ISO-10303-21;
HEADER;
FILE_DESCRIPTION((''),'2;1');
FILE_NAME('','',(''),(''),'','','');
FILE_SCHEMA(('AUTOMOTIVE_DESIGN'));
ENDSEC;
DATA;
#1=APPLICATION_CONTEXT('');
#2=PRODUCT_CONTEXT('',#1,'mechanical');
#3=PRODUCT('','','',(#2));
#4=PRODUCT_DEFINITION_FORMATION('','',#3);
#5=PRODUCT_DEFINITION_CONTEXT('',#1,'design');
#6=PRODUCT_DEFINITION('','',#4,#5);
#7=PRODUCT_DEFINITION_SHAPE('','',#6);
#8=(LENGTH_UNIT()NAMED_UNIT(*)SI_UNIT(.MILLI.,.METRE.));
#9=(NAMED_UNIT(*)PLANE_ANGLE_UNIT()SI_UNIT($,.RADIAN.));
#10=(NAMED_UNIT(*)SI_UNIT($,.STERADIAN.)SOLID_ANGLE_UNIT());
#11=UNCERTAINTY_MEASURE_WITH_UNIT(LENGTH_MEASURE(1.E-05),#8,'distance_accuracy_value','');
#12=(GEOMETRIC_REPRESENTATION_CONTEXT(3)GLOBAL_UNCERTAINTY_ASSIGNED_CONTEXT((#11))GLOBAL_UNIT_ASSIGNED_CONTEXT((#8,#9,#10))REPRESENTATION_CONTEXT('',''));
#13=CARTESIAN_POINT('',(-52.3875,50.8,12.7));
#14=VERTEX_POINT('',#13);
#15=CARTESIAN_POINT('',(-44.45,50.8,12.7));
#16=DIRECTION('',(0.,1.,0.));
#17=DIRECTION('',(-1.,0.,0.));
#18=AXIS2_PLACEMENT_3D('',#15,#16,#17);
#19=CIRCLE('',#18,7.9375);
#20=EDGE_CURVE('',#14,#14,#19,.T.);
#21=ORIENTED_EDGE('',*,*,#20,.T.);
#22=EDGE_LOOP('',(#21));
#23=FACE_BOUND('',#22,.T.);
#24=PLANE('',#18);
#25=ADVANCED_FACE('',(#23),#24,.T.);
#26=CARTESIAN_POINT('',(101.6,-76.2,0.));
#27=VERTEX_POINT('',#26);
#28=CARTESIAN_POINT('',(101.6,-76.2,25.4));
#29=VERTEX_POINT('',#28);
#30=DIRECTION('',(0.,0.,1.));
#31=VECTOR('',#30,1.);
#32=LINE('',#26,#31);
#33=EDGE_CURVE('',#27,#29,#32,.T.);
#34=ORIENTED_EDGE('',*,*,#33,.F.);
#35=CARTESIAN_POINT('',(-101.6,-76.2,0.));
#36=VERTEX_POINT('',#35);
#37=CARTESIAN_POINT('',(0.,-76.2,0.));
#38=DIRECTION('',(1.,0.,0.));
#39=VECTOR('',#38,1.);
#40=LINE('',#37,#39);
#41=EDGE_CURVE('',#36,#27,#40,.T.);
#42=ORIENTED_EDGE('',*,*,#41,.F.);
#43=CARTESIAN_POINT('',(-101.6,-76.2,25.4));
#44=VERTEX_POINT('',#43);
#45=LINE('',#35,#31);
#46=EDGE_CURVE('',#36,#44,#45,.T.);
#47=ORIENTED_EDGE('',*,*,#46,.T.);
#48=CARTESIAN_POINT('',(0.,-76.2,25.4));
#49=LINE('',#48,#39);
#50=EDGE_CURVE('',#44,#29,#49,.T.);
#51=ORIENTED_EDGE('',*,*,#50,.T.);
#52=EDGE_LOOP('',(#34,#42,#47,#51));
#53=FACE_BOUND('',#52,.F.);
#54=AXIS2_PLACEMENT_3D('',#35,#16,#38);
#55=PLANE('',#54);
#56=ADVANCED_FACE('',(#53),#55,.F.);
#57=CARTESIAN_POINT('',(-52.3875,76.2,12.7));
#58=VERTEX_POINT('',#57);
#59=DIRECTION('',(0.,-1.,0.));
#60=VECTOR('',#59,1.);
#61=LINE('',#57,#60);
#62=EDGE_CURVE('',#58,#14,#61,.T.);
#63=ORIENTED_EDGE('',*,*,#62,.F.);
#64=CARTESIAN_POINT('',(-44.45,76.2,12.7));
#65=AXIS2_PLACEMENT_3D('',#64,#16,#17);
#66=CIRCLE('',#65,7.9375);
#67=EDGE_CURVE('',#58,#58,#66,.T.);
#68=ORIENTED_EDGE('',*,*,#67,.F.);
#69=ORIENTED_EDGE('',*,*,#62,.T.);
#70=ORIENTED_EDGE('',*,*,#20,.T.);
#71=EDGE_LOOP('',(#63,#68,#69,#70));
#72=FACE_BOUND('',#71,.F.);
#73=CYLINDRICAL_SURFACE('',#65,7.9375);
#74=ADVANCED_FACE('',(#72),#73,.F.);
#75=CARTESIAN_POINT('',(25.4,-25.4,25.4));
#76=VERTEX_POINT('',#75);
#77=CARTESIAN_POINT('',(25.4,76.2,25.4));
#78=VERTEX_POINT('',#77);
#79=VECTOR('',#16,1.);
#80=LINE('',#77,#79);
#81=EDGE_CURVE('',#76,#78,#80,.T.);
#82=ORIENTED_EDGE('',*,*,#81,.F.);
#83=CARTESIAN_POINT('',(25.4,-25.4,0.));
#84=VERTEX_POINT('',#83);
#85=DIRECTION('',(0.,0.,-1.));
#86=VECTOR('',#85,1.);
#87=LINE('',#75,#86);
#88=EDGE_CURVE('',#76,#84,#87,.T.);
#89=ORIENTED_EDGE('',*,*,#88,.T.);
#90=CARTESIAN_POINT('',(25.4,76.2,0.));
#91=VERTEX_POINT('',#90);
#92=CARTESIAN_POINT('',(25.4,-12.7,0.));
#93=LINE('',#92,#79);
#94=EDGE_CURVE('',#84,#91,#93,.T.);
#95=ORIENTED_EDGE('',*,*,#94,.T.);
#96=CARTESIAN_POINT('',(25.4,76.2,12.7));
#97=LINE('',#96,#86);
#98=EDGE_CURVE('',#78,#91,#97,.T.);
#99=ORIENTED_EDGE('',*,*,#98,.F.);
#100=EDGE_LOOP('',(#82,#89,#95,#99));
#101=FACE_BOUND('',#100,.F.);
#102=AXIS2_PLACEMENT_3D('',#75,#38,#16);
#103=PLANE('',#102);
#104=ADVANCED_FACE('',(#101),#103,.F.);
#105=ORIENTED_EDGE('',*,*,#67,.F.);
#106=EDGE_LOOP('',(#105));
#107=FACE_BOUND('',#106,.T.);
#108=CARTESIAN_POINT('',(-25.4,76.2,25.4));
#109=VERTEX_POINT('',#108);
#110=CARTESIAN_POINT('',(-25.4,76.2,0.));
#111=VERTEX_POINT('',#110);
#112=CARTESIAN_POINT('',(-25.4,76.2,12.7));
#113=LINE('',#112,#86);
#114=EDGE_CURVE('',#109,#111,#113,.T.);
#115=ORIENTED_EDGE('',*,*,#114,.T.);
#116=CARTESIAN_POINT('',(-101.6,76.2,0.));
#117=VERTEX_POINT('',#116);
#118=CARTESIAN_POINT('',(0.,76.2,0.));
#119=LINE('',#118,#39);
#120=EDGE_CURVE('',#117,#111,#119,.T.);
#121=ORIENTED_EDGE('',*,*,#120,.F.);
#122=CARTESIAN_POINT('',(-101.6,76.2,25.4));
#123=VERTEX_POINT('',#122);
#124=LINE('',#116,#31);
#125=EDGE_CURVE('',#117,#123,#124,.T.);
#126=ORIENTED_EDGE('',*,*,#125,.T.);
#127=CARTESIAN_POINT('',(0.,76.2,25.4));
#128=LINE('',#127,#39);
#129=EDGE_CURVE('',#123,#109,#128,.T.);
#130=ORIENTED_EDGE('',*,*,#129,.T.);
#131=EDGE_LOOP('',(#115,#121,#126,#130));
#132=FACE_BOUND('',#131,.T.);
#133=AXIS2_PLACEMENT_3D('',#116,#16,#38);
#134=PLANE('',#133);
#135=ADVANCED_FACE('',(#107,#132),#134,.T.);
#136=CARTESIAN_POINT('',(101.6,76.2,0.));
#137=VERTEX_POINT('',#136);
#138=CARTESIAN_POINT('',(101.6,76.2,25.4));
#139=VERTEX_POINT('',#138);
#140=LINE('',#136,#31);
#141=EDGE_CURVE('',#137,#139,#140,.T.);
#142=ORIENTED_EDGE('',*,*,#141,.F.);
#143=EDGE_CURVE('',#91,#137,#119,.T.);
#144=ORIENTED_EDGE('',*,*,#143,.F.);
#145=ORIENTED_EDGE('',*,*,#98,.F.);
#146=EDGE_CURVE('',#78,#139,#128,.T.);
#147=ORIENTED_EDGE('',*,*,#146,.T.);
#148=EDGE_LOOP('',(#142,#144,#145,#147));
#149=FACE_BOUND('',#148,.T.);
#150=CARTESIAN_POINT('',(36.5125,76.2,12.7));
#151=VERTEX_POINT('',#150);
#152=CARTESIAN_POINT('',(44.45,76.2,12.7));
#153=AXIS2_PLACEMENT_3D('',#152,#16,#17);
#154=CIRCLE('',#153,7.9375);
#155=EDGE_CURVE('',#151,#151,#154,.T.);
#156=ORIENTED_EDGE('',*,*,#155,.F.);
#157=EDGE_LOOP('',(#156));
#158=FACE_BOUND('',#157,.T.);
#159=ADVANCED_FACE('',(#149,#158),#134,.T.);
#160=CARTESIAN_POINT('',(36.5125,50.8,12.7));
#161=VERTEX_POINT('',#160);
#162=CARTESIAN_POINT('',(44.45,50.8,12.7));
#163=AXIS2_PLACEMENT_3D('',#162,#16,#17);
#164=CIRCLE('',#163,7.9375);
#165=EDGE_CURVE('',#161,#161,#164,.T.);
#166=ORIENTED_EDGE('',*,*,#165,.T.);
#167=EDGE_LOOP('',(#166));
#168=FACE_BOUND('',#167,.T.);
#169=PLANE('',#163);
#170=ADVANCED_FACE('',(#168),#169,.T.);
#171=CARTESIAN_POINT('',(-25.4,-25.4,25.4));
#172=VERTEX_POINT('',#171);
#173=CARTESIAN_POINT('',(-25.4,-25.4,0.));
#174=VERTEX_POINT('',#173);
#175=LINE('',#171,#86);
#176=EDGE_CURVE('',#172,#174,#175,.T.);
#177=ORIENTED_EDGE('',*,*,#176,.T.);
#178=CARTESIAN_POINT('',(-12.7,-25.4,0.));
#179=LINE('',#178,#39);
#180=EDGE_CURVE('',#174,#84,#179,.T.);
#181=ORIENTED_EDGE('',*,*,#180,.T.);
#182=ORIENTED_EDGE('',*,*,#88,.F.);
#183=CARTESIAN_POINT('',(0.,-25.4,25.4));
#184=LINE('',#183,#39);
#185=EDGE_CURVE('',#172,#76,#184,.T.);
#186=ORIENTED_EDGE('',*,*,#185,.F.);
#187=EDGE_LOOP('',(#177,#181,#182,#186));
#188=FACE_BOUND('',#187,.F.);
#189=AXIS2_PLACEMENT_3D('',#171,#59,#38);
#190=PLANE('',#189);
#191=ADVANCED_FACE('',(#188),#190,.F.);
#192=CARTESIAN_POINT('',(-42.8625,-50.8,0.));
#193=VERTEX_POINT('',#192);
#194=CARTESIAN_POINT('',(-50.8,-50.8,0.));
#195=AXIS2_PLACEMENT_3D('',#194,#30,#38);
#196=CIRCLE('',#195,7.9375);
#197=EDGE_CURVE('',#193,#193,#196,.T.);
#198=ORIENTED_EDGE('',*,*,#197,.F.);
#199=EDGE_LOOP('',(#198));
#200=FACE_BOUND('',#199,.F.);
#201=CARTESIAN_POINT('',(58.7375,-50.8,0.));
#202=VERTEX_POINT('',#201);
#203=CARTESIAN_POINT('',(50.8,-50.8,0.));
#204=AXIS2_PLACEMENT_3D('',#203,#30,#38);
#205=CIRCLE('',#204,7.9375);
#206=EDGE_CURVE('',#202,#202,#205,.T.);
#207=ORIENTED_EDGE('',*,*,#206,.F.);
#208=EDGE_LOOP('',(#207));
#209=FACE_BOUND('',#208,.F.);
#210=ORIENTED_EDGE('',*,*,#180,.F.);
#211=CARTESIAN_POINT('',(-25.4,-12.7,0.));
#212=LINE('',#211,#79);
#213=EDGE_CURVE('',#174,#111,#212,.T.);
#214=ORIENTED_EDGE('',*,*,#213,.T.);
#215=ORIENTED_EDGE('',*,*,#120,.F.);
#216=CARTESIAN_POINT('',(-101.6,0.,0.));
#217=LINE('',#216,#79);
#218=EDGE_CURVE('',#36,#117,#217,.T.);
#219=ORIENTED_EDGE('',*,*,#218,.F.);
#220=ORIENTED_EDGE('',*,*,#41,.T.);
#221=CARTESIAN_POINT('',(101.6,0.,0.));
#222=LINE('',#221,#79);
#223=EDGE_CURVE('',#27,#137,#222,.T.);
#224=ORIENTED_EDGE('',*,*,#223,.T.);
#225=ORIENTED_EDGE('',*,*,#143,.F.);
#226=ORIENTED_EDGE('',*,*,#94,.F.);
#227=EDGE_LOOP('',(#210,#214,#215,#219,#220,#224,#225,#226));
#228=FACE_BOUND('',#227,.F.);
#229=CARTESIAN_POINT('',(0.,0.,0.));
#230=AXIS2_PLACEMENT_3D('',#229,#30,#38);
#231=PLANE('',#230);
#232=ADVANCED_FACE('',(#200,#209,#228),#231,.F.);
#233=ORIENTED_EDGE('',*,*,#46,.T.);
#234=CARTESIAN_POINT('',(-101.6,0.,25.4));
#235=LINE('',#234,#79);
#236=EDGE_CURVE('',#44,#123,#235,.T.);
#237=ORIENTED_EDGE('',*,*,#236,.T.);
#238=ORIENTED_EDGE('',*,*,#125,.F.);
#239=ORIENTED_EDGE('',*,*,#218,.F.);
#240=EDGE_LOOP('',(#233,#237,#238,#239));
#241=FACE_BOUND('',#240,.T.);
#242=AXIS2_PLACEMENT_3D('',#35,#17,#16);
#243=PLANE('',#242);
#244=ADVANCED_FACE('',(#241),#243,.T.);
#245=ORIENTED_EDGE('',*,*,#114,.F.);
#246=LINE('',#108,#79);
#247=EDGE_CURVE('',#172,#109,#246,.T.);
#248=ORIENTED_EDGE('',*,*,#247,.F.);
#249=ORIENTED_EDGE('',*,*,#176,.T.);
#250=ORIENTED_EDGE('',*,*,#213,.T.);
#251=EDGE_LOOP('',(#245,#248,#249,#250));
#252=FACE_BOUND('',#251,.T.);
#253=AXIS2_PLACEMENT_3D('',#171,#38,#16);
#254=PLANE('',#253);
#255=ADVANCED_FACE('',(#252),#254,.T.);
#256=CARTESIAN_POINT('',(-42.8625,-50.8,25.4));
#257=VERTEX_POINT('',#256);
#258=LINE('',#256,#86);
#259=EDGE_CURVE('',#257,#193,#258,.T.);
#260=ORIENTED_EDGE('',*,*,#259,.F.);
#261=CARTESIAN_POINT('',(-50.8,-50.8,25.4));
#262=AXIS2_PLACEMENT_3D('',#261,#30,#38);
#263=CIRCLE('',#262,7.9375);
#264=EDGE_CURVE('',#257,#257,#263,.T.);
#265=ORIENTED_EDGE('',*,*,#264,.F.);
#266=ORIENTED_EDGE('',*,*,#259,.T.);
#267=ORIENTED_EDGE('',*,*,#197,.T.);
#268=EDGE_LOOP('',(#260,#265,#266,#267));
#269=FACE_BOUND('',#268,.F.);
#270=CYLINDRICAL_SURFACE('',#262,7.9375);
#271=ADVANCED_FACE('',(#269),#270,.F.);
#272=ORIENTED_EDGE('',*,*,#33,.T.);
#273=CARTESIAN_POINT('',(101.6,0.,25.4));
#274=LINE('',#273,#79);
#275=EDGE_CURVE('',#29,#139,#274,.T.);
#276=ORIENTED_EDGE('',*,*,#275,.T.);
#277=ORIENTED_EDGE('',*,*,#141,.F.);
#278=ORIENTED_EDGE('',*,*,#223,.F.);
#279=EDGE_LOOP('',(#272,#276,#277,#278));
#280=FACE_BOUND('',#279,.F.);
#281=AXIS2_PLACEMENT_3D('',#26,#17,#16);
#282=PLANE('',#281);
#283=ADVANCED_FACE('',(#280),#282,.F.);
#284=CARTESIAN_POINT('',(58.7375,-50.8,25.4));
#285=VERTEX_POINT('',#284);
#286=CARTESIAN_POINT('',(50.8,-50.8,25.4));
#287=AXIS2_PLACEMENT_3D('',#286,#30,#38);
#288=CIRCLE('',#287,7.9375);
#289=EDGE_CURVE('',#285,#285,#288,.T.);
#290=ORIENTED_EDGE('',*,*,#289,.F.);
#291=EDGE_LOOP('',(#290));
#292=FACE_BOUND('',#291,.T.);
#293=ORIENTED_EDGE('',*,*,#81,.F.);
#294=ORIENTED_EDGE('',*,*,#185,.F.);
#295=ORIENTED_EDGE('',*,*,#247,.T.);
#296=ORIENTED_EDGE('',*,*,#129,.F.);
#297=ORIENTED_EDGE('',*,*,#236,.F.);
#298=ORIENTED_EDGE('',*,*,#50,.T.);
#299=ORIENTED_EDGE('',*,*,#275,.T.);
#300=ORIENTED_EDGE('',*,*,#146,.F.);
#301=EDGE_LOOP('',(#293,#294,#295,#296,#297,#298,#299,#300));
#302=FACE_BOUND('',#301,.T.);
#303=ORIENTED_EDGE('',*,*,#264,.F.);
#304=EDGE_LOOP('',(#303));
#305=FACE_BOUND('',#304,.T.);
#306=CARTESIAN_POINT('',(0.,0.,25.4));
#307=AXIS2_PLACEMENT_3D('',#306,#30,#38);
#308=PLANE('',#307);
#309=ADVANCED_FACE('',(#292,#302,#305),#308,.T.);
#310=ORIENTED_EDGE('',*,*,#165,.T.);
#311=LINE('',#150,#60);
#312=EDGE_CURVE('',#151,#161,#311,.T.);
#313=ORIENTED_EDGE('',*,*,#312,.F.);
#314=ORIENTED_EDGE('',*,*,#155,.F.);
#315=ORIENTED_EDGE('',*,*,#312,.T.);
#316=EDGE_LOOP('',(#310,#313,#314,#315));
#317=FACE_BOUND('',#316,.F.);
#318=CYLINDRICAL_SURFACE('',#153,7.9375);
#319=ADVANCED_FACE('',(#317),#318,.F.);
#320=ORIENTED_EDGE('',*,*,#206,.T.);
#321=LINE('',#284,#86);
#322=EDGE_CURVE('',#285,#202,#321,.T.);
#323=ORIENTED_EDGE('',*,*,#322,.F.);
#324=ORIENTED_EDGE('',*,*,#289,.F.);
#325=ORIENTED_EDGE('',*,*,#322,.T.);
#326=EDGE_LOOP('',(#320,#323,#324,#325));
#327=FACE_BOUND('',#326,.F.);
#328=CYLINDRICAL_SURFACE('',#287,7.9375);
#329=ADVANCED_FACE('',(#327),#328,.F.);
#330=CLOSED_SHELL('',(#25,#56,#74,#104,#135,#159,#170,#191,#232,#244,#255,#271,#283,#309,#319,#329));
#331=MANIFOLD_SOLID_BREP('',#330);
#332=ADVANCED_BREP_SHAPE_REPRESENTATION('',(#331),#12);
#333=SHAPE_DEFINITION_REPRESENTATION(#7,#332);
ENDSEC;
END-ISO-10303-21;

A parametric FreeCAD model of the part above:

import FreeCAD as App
import Part
import Sketcher
Q = App.Units.Quantity

doc = App.newDocument("Part")
params = doc.addObject("Spreadsheet::Sheet", "Params")
for row, (alias, value) in enumerate([
    ("sketch1_width", "8 in"),
    ("sketch1_height", "6 in"),
    ("sketch1_diameter", "0.625 in"),
    ("pad1_length", "1 in"),
    ("sketch2_width", "2 in"),
    ("sketch2_height", "8 in"),
    ("pocket1_length", "2 in"),
    ("sketch3_diameter", "0.625 in"),
    ("pocket2_length", "1 in"),
    ("sketch4_diameter", "0.625 in"),
    ("pocket3_length", "1 in"),
], start=1):
    params.set(f"A{row}", alias)
    params.set(f"B{row}", "=" + value)
    params.setAlias(f"B{row}", alias)

body = doc.addObject("PartDesign::Body", "Body")

sketch1 = body.newObject("Sketcher::SketchObject", "Sketch")
sketch1.AttachmentSupport = (doc.getObject("XY_Plane"), [""])
sketch1.MapMode = "FlatFace"
sketch1.addGeometry([
    Part.LineSegment(App.Vector(-102, 76, 0), App.Vector(-102, -76, 0)),
    Part.LineSegment(App.Vector(-102, -76, 0), App.Vector(102, -76, 0)),
    Part.LineSegment(App.Vector(102, -76, 0), App.Vector(102, 76, 0)),
    Part.LineSegment(App.Vector(102, 76, 0), App.Vector(-102, 76, 0)),
    Part.Circle(App.Vector(0, 0, 0), App.Vector(0, 0, 1), 8),
], False)
sketch1.addConstraint([
    Sketcher.Constraint("Coincident", 0, 2, 1, 1),
    Sketcher.Constraint("Coincident", 1, 2, 2, 1),
    Sketcher.Constraint("Coincident", 2, 2, 3, 1),
    Sketcher.Constraint("Coincident", 3, 2, 0, 1),
    Sketcher.Constraint("Vertical", 0),
    Sketcher.Constraint("Horizontal", 1),
    Sketcher.Constraint("Vertical", 2),
    Sketcher.Constraint("Horizontal", 3),
    Sketcher.Constraint("Coincident", 4, 3, -1, 1),
    Sketcher.Constraint("Symmetric", 0, 2, 2, 2, -1, 1),
    Sketcher.Constraint("DistanceX", 1, 1, 1, 2, Q("8 in")),
    Sketcher.Constraint("DistanceY", 0, 2, 0, 1, Q("6 in")),
    Sketcher.Constraint("Diameter", 4, Q("0.625 in")),
])
sketch1.setExpression("Constraints[10]", "Params.sketch1_width")
sketch1.setExpression("Constraints[11]", "Params.sketch1_height")
sketch1.setExpression("Constraints[12]", "Params.sketch1_diameter")
pad1 = body.newObject("PartDesign::Pad", "Pad")
pad1.Profile = sketch1
pad1.setExpression("Length", "Params.pad1_length")

sketch2 = body.newObject("Sketcher::SketchObject", "Sketch001")
sketch2.AttachmentSupport = (doc.getObject("XY_Plane"), [""])
sketch2.MapMode = "FlatFace"
sketch2.AttachmentOffset = App.Placement(App.Vector(0, 0, 1 * 25.4), App.Rotation())
sketch2.addGeometry([
    Part.LineSegment(App.Vector(-25, 178, 0), App.Vector(-25, -25, 0)),
    Part.LineSegment(App.Vector(-25, -25, 0), App.Vector(25, -25, 0)),
    Part.LineSegment(App.Vector(25, -25, 0), App.Vector(25, 178, 0)),
    Part.LineSegment(App.Vector(25, 178, 0), App.Vector(-25, 178, 0)),
], False)
sketch2.addConstraint([
    Sketcher.Constraint("Coincident", 0, 2, 1, 1),
    Sketcher.Constraint("Coincident", 1, 2, 2, 1),
    Sketcher.Constraint("Coincident", 2, 2, 3, 1),
    Sketcher.Constraint("Coincident", 3, 2, 0, 1),
    Sketcher.Constraint("Vertical", 0),
    Sketcher.Constraint("Horizontal", 1),
    Sketcher.Constraint("Vertical", 2),
    Sketcher.Constraint("Horizontal", 3),
    Sketcher.Constraint("DistanceX", 1, 1, 1, 2, Q("2 in")),
    Sketcher.Constraint("DistanceY", 0, 2, 0, 1, Q("8 in")),
    Sketcher.Constraint("DistanceX", 0, 2, -1, 1, Q("1 in")),
    Sketcher.Constraint("DistanceY", 0, 2, -1, 1, Q("1 in")),
])
sketch2.setExpression("Constraints[8]", "Params.sketch2_width")
sketch2.setExpression("Constraints[9]", "Params.sketch2_height")
pocket1 = body.newObject("PartDesign::Pocket", "Pocket")
pocket1.Profile = sketch2
pocket1.setExpression("Length", "Params.pocket1_length")

sketch3 = body.newObject("Sketcher::SketchObject", "Sketch002")
sketch3.AttachmentSupport = (doc.getObject("XY_Plane"), [""])
sketch3.MapMode = "FlatFace"
sketch3.AttachmentOffset = App.Placement(App.Vector(0, 0, 1 * 25.4), App.Rotation())
sketch3.addGeometry([
    Part.Circle(App.Vector(-51, -51, 0), App.Vector(0, 0, 1), 8),
    Part.Circle(App.Vector(51, -51, 0), App.Vector(0, 0, 1), 8),
], False)
sketch3.addConstraint([
    Sketcher.Constraint("Equal", 0, 1),
    Sketcher.Constraint("Symmetric", 0, 3, 1, 3, -2),
    Sketcher.Constraint("Diameter", 0, Q("0.625 in")),
    Sketcher.Constraint("DistanceX", 0, 3, -1, 1, Q("2 in")),
    Sketcher.Constraint("DistanceY", 0, 3, -1, 1, Q("2 in")),
])
sketch3.setExpression("Constraints[2]", "Params.sketch3_diameter")
pocket2 = body.newObject("PartDesign::Pocket", "Pocket001")
pocket2.Profile = sketch3
pocket2.setExpression("Length", "Params.pocket2_length")

sketch4 = body.newObject("Sketcher::SketchObject", "Sketch003")
sketch4.AttachmentSupport = (doc.getObject("XZ_Plane"), [""])
sketch4.MapMode = "FlatFace"
sketch4.AttachmentOffset = App.Placement(App.Vector(0, 0, -3 * 25.4), App.Rotation())
sketch4.addGeometry([
    Part.Circle(App.Vector(44, 13, 0), App.Vector(0, 0, 1), 8),
    Part.Circle(App.Vector(-44, 13, 0), App.Vector(0, 0, 1), 8),
], False)
sketch4.addConstraint([
    Sketcher.Constraint("Equal", 0, 1),
    Sketcher.Constraint("Symmetric", 0, 3, 1, 3, -2),
    Sketcher.Constraint("Diameter", 0, Q("0.625 in")),
    Sketcher.Constraint("DistanceY", -1, 1, 0, 3, Q("0.5 in")),
    Sketcher.Constraint("DistanceX", 1, 3, 0, 3, Q("3.5 in")),
])
sketch4.setExpression("Constraints[2]", "Params.sketch4_diameter")
pocket3 = body.newObject("PartDesign::Pocket", "Pocket002")
pocket3.Profile = sketch4
pocket3.setExpression("Length", "Params.pocket3_length")
pocket3.Reversed = True

doc.recompute()
